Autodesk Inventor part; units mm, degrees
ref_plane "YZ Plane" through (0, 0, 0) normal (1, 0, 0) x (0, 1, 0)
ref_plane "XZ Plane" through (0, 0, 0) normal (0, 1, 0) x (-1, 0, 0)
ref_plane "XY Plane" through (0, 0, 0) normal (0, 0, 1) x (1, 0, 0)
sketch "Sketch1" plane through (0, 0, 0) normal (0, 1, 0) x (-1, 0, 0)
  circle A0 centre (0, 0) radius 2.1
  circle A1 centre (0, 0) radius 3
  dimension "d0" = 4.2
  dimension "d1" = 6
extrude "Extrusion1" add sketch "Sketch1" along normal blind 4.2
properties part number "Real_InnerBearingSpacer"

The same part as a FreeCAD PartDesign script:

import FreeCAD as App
import Part
import Sketcher
from FreeCAD import Vector

doc = App.newDocument("Part")
body = doc.addObject("PartDesign::Body", "Body")

sketch1 = doc.addObject("Sketcher::SketchObject", "Sketch")
body.addObject(sketch1)
sketch1.AttachmentSupport = (doc.XZ_Plane, [""])
sketch1.MapMode = "FlatFace"
sketch1.addGeometry([
    Part.Circle(Vector(0, 0, 0), Vector(0, 0, 1), 3),
    Part.Circle(Vector(0, 0, 0), Vector(0, 0, 1), 2.1),
], False)
sketch1.addConstraint([
    Sketcher.Constraint("Coincident", 0, 3, -1, 1),
    Sketcher.Constraint("Coincident", 1, 3, -1, 1),
    Sketcher.Constraint("Diameter", 0, 6.0),
    Sketcher.Constraint("Diameter", 1, 4.2),
])
pad1 = doc.addObject("PartDesign::Pad", "Pad")
body.addObject(pad1)
pad1.Profile = sketch1
pad1.Length = 4.2
pad1.Reversed = True

doc.recompute()
